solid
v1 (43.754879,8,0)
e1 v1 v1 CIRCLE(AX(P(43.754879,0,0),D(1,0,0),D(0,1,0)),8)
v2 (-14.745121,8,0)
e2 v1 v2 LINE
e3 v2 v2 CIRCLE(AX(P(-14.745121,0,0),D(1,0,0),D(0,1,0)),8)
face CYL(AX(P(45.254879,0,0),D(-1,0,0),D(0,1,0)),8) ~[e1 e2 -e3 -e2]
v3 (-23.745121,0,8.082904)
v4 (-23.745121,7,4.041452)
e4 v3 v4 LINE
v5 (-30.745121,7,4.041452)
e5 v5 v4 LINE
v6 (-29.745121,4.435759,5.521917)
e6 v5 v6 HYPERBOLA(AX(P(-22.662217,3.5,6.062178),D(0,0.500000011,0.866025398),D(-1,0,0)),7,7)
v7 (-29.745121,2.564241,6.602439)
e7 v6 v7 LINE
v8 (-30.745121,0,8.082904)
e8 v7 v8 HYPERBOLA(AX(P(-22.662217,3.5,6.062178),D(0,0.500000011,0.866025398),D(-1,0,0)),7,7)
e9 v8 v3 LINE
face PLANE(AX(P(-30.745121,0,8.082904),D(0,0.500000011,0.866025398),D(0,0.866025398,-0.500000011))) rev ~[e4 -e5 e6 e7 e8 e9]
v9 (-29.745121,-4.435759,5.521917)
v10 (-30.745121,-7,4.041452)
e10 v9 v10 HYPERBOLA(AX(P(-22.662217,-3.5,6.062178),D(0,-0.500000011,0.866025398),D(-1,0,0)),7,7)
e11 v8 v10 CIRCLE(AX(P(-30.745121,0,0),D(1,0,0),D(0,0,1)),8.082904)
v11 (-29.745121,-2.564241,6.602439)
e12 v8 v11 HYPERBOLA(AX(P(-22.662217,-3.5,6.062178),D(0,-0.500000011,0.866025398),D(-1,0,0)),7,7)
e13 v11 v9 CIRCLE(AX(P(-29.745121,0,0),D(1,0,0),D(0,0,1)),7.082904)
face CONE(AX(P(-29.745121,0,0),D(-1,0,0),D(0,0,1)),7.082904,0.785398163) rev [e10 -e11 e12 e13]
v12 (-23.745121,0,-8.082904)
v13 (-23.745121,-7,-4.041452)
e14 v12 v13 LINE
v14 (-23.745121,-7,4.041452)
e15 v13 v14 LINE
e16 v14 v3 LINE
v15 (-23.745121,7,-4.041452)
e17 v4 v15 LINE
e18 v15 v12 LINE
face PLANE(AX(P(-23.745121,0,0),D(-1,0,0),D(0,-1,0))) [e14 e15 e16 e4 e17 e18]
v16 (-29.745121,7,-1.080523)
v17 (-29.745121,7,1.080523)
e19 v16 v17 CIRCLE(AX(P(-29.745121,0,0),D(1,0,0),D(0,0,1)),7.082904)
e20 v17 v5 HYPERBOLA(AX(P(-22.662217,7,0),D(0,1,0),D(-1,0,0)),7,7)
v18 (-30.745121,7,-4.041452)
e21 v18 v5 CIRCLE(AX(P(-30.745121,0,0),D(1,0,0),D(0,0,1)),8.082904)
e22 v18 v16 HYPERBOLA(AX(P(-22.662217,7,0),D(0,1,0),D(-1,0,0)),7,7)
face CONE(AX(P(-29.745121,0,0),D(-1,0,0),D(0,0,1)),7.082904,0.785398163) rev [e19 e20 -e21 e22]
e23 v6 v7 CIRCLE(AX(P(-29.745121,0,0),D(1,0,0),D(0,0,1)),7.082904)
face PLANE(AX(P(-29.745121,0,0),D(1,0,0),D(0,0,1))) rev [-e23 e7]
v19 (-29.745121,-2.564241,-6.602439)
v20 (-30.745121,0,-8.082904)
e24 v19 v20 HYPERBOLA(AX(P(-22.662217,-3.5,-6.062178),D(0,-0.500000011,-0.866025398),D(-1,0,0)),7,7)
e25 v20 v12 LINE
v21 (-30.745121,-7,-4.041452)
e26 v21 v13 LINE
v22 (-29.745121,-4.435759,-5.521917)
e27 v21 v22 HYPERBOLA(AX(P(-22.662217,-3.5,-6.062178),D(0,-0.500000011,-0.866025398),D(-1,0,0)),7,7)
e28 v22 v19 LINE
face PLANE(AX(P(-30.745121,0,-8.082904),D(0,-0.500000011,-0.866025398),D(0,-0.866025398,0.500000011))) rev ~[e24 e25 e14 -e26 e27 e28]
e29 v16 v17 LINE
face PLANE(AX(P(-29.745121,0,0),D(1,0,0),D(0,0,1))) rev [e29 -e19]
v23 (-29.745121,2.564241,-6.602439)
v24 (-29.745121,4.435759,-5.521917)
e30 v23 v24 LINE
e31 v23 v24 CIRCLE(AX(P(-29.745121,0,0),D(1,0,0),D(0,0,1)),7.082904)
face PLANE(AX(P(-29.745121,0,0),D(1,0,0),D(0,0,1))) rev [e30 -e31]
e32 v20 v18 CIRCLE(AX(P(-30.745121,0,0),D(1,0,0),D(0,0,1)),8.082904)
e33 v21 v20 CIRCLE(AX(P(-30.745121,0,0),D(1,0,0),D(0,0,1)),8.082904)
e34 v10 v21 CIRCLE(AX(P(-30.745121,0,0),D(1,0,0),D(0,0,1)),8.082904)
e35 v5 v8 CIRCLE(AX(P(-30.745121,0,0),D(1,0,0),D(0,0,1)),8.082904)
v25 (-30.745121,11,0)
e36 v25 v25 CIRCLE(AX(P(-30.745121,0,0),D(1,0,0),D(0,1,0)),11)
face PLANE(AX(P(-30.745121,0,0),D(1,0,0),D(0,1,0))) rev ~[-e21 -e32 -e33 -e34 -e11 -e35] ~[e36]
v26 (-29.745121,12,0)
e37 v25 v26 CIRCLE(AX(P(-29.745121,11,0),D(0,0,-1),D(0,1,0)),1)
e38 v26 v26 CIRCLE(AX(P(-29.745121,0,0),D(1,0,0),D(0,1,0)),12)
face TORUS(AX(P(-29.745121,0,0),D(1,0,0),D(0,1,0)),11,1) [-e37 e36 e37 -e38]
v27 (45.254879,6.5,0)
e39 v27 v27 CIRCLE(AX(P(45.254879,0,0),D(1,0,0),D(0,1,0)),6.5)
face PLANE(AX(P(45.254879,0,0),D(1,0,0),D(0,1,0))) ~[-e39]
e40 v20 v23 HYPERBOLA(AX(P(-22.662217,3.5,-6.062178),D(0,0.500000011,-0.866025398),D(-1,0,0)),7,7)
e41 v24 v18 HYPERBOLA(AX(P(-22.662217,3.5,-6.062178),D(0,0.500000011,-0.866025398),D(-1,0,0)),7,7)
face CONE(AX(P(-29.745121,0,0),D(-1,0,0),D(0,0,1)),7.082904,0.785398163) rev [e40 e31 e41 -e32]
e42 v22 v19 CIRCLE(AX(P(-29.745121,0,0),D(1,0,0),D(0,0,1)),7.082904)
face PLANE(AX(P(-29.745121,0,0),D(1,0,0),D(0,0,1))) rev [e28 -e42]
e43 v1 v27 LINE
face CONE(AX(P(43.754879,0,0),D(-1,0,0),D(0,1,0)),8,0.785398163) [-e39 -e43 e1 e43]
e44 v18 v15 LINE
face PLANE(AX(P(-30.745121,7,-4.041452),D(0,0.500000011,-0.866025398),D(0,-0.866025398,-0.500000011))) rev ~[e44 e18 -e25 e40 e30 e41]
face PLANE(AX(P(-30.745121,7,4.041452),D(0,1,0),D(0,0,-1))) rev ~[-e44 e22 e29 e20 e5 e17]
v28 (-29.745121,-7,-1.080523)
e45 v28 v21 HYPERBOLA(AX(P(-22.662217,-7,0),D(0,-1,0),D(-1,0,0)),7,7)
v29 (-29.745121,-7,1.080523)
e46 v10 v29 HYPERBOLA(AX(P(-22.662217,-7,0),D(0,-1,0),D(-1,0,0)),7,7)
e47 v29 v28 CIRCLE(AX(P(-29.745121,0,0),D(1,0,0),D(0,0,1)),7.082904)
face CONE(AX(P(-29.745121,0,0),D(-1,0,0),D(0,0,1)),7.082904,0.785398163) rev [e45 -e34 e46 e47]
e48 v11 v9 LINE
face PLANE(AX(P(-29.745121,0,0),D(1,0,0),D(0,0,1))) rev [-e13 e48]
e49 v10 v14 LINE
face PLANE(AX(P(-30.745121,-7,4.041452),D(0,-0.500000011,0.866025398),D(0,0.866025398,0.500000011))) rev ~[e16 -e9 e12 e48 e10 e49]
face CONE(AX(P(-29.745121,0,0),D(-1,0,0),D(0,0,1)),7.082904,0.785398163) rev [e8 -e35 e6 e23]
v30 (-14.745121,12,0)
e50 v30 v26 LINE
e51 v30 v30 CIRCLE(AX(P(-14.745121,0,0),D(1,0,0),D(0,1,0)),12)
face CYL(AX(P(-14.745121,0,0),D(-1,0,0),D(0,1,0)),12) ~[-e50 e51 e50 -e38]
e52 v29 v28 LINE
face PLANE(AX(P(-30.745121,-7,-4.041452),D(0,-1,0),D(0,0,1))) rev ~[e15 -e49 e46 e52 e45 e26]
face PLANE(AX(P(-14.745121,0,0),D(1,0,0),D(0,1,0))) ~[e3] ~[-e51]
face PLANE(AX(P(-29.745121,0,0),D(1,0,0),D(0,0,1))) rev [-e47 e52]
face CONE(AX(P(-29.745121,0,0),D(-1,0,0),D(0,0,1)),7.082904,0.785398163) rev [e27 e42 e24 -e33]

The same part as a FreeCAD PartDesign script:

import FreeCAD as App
import Part
import Sketcher

V = App.Vector
Q = App.Units.Quantity


def edges_at(feature, points):
    """Names of the edges that pass closest to the given points."""
    edges = feature.Shape.Edges
    near = lambda p: min(range(len(edges)), key=lambda i: edges[i].distToShape(Part.Vertex(*p))[0])
    return sorted({f"Edge{near(p) + 1}" for p in points})

doc = App.newDocument("Part")
params = doc.addObject("Spreadsheet::Sheet", "Params")
for row, (alias, value) in enumerate([
    ("sketch1_width", "76 mm"),
    ("sketch1_width2", "60 mm"),
    ("sketch1_height", "12 mm"),
    ("sketch1_height2", "8 mm"),
    ("revolution_angle", "360 deg"),
    ("fillet_radius", "1 mm"),
    ("chamfer_size", "1.5 mm"),
    ("pocket1_length", "7 mm"),
    ("sketch3_width", "1 mm"),
    ("groove_angle", "360 deg"),
], start=1):
    params.set(f"A{row}", alias)
    params.set(f"B{row}", "=" + value)
    params.setAlias(f"B{row}", alias)

body = doc.addObject("PartDesign::Body", "Body")

# Sketch on XY plane
sketch1 = body.newObject("Sketcher::SketchObject", "Sketch")
sketch1.AttachmentSupport = (doc.getObject("XY_Plane"), [""])
sketch1.MapMode = "FlatFace"
sketch1.addGeometry([
    Part.LineSegment(V(-30.7, 12, 0), V(-30.7, 0, 0)),  # 0
    Part.LineSegment(V(-30.7, 0, 0), V(45.3, 0, 0)),  # 1
    Part.LineSegment(V(45.3, 0, 0), V(45.3, 8, 0)),  # 2
    Part.LineSegment(V(45.3, 8, 0), V(-14.7, 8, 0)),  # 3
    Part.LineSegment(V(-14.7, 8, 0), V(-14.7, 12, 0)),  # 4
    Part.LineSegment(V(-14.7, 12, 0), V(-30.7, 12, 0)),  # 5
], False)
sketch1.addConstraint([
    Sketcher.Constraint("Coincident", 0, 2, 1, 1),
    Sketcher.Constraint("Coincident", 1, 2, 2, 1),
    Sketcher.Constraint("Coincident", 2, 2, 3, 1),
    Sketcher.Constraint("Coincident", 3, 2, 4, 1),
    Sketcher.Constraint("Coincident", 4, 2, 5, 1),
    Sketcher.Constraint("Coincident", 5, 2, 0, 1),
    Sketcher.Constraint("Vertical", 0),
    Sketcher.Constraint("Horizontal", 1),
    Sketcher.Constraint("Vertical", 2),
    Sketcher.Constraint("Horizontal", 3),
    Sketcher.Constraint("Vertical", 4),
    Sketcher.Constraint("Horizontal", 5),
    Sketcher.Constraint("PointOnObject", 0, 2, -1),
    Sketcher.Constraint("DistanceX", 1, 1, 1, 2, Q("76 mm")),
    Sketcher.Constraint("DistanceX", 3, 2, 3, 1, Q("60 mm")),
    Sketcher.Constraint("DistanceY", 0, 2, 0, 1, Q("12 mm")),
    Sketcher.Constraint("DistanceY", 2, 1, 2, 2, Q("8 mm")),
    Sketcher.Constraint("DistanceX", 0, 2, -1, 1, Q("30.745121 mm")),
])
sketch1.setExpression("Constraints[13]", "Params.sketch1_width")
sketch1.setExpression("Constraints[14]", "Params.sketch1_width2")
sketch1.setExpression("Constraints[15]", "Params.sketch1_height")
sketch1.setExpression("Constraints[16]", "Params.sketch1_height2")
revolution = body.newObject("PartDesign::Revolution", "Revolution")
revolution.Profile = sketch1
revolution.ReferenceAxis = (sketch1, ["H_Axis"])
revolution.setExpression("Angle", "Params.revolution_angle")
doc.recompute()

fillet = body.newObject("PartDesign::Fillet", "Fillet")
fillet.Base = (revolution, edges_at(revolution, [(-30.745, -12, 0)]))
fillet.setExpression("Radius", "Params.fillet_radius")
doc.recompute()

chamfer = body.newObject("PartDesign::Chamfer", "Chamfer")
chamfer.Base = (fillet, edges_at(fillet, [(45.255, -8, 0)]))
chamfer.setExpression("Size", "Params.chamfer_size")

# Sketch on YZ plane
sketch2 = body.newObject("Sketcher::SketchObject", "Sketch001")
sketch2.AttachmentSupport = (doc.getObject("YZ_Plane"), [""])
sketch2.MapMode = "FlatFace"
sketch2.AttachmentOffset = App.Placement(V(0, 0, -30.745121), App.Rotation())
sketch2.addGeometry([
    Part.LineSegment(V(-7, -4, 0), V(-7, 4, 0)),  # 0
    Part.LineSegment(V(-7, 4, 0), V(0, 8, 0)),  # 1
    Part.LineSegment(V(0, 8, 0), V(7, 4, 0)),  # 2
    Part.LineSegment(V(7, 4, 0), V(7, -4, 0)),  # 3
    Part.LineSegment(V(7, -4, 0), V(0, -8, 0)),  # 4
    Part.LineSegment(V(0, -8, 0), V(-7, -4, 0)),  # 5
], False)
sketch2.addConstraint([
    Sketcher.Constraint("Coincident", 0, 2, 1, 1),
    Sketcher.Constraint("Coincident", 1, 2, 2, 1),
    Sketcher.Constraint("Coincident", 2, 2, 3, 1),
    Sketcher.Constraint("Coincident", 3, 2, 4, 1),
    Sketcher.Constraint("Coincident", 4, 2, 5, 1),
    Sketcher.Constraint("Coincident", 5, 2, 0, 1),
    Sketcher.Constraint("Vertical", 0),
    Sketcher.Constraint("Vertical", 3),
    Sketcher.Constraint("Symmetric", 0, 2, 3, 2, -1, 1),
    Sketcher.Constraint("Symmetric", 1, 2, 4, 2, -1, 1),
    Sketcher.Constraint("PointOnObject", 1, 2, -2),
    Sketcher.Constraint("Parallel", 2, 5),
    Sketcher.Constraint("Horizontal", 0, 2, 2, 2),
    Sketcher.Constraint("Angle", 1, Q("30.000001 deg")),
    Sketcher.Constraint("DistanceX", 0, 2, -1, 1, Q("7 mm")),
    Sketcher.Constraint("DistanceY", 0, 1, 0, 2, Q("8.082904 mm")),
])
pocket1 = body.newObject("PartDesign::Pocket", "Pocket")
pocket1.Profile = sketch2
pocket1.setExpression("Length", "Params.pocket1_length")
pocket1.Reversed = True

# Sketch on XZ plane
sketch3 = body.newObject("Sketcher::SketchObject", "Sketch002")
sketch3.AttachmentSupport = (doc.getObject("XZ_Plane"), [""])
sketch3.MapMode = "FlatFace"
sketch3.addGeometry([
    Part.LineSegment(V(-29.7, 7.1, 0), V(-30.7, 8.1, 0)),
    Part.LineSegment(V(-30.7, 8.1, 0), V(-30.7, 0, 0)),
    Part.LineSegment(V(-30.7, 0, 0), V(-29.7, 0, 0)),
    Part.LineSegment(V(-29.7, 0, 0), V(-29.7, 7.1, 0)),
], False)
sketch3.addConstraint([
    Sketcher.Constraint("Coincident", 0, 2, 1, 1),
    Sketcher.Constraint("Coincident", 1, 2, 2, 1),
    Sketcher.Constraint("Coincident", 2, 2, 3, 1),
    Sketcher.Constraint("Coincident", 3, 2, 0, 1),
    Sketcher.Constraint("Vertical", 1),
    Sketcher.Constraint("Horizontal", 2),
    Sketcher.Constraint("Vertical", 3),
    Sketcher.Constraint("PointOnObject", 1, 2, -1),
    Sketcher.Constraint("DistanceX", 2, 1, 2, 2, Q("1 mm")),
    Sketcher.Constraint("Angle", 0, Q("135 deg")),
    Sketcher.Constraint("DistanceY", 1, 2, 1, 1, Q("8.082904 mm")),
    Sketcher.Constraint("DistanceX", 0, 2, -1, 1, Q("30.745121 mm")),
])
sketch3.setExpression("Constraints[8]", "Params.sketch3_width")
groove = body.newObject("PartDesign::Groove", "Groove")
groove.Profile = sketch3
groove.ReferenceAxis = (sketch3, ["H_Axis"])
groove.setExpression("Angle", "Params.groove_angle")
body2 = doc.addObject("PartDesign::Body", "Body001")
doc.recompute()

body2.BaseFeature = body
doc.recompute()
body.Visibility = False

doc.recompute()
